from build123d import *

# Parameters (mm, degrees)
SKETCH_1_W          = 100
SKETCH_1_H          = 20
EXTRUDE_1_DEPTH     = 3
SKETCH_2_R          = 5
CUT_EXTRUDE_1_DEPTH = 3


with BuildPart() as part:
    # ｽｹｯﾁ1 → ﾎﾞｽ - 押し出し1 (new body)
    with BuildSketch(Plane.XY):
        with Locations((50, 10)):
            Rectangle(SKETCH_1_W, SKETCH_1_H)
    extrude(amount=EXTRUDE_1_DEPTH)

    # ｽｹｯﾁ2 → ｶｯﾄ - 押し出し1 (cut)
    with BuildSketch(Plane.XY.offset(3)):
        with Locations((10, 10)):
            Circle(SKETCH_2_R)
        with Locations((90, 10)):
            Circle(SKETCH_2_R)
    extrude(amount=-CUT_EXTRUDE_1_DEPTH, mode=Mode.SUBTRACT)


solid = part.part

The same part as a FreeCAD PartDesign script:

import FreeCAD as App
import Part
import Sketcher
from FreeCAD import Vector
Q = App.Units.Quantity

doc = App.newDocument("Part")
params = doc.addObject("Spreadsheet::Sheet", "Params")
for row, (alias, value) in enumerate([
    ("sketch1_width", "100 mm"),
    ("sketch1_height", "20 mm"),
    ("pad1_length", "3 mm"),
    ("sketch2_diameter", "10 mm"),
    ("pocket1_length", "3 mm"),
], start=1):
    params.set(f"A{row}", alias)
    params.set(f"B{row}", "=" + value)
    params.setAlias(f"B{row}", alias)

body = doc.addObject("PartDesign::Body", "Body")

# Sketch on XY plane
sketch1 = doc.addObject("Sketcher::SketchObject", "Sketch")
body.addObject(sketch1)
sketch1.AttachmentSupport = (doc.XY_Plane, [""])
sketch1.MapMode = "FlatFace"
sketch1.addGeometry([
    Part.LineSegment(Vector(0, 20, 0), Vector(0, 0, 0)),
    Part.LineSegment(Vector(0, 0, 0), Vector(100, 0, 0)),
    Part.LineSegment(Vector(100, 0, 0), Vector(100, 20, 0)),
    Part.LineSegment(Vector(100, 20, 0), Vector(0, 20, 0)),
], False)
sketch1.addConstraint([
    Sketcher.Constraint("Coincident", 0, 2, 1, 1),
    Sketcher.Constraint("Coincident", 1, 2, 2, 1),
    Sketcher.Constraint("Coincident", 2, 2, 3, 1),
    Sketcher.Constraint("Coincident", 3, 2, 0, 1),
    Sketcher.Constraint("Vertical", 0),
    Sketcher.Constraint("Horizontal", 1),
    Sketcher.Constraint("Vertical", 2),
    Sketcher.Constraint("Horizontal", 3),
    Sketcher.Constraint("Coincident", 0, 2, -1, 1),
    Sketcher.Constraint("DistanceX", 1, 1, 1, 2, Q("100 mm")),
    Sketcher.Constraint("DistanceY", 0, 2, 0, 1, Q("20 mm")),
])
sketch1.setExpression("Constraints[9]", "Params.sketch1_width")
sketch1.setExpression("Constraints[10]", "Params.sketch1_height")
pad1 = doc.addObject("PartDesign::Pad", "Pad")
body.addObject(pad1)
pad1.Profile = sketch1
pad1.setExpression("Length", "Params.pad1_length")

# Sketch on XY plane
sketch2 = doc.addObject("Sketcher::SketchObject", "Sketch001")
body.addObject(sketch2)
sketch2.AttachmentSupport = (doc.XY_Plane, [""])
sketch2.MapMode = "FlatFace"
sketch2.AttachmentOffset = App.Placement(Vector(0, 0, 3), App.Rotation())
sketch2.addGeometry([
    Part.Circle(Vector(10, 10, 0), Vector(0, 0, 1), 5),
    Part.Circle(Vector(90, 10, 0), Vector(0, 0, 1), 5),
], False)
sketch2.addConstraint([
    Sketcher.Constraint("Equal", 0, 1),
    Sketcher.Constraint("Horizontal", 0, 3, 1, 3),
    Sketcher.Constraint("Diameter", 0, Q("10 mm")),
    Sketcher.Constraint("DistanceX", -1, 1, 0, 3, Q("10 mm")),
    Sketcher.Constraint("DistanceY", -1, 1, 0, 3, Q("10 mm")),
    Sketcher.Constraint("DistanceX", -1, 1, 1, 3, Q("90 mm")),
])
sketch2.setExpression("Constraints[2]", "Params.sketch2_diameter")
pocket1 = doc.addObject("PartDesign::Pocket", "Pocket")
body.addObject(pocket1)
pocket1.Profile = sketch2
pocket1.setExpression("Length", "Params.pocket1_length")

doc.recompute()
